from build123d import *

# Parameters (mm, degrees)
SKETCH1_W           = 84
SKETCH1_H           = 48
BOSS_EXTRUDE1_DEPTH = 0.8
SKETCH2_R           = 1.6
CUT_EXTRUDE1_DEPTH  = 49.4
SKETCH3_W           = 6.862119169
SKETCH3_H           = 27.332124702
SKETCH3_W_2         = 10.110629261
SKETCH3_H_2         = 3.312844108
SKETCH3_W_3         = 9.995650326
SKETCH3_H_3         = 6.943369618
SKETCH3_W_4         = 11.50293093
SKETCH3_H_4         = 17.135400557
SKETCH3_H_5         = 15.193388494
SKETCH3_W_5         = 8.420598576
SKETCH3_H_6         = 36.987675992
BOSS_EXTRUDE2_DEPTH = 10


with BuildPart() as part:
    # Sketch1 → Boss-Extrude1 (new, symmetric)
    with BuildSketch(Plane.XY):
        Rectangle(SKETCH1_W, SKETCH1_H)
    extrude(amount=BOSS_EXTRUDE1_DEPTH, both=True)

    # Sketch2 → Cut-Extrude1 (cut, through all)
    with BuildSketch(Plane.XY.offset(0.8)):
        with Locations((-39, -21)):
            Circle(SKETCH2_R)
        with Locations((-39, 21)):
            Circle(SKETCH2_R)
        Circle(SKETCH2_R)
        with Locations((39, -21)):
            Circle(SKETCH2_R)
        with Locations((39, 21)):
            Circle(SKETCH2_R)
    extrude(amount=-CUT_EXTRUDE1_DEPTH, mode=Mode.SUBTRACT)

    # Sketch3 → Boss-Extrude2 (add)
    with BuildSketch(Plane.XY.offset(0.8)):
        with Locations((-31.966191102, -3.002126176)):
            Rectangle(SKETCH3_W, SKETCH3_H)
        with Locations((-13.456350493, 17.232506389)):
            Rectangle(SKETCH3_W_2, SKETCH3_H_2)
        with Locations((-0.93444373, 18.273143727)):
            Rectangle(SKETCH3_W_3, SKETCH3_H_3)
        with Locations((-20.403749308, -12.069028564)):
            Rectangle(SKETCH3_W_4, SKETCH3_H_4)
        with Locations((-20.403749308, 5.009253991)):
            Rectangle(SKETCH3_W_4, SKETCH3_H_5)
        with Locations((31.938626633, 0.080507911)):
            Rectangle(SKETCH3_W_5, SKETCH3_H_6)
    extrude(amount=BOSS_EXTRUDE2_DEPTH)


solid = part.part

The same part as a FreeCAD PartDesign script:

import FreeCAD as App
import Part
import Sketcher

V = App.Vector

doc = App.newDocument("Part")
body = doc.addObject("PartDesign::Body", "Body")

# Sketch on XY plane
sketch1 = body.newObject("Sketcher::SketchObject", "Sketch")
sketch1.AttachmentSupport = (doc.getObject("XY_Plane"), [""])
sketch1.MapMode = "FlatFace"
sketch1.addGeometry([
    Part.LineSegment(V(-42, 24, 0), V(-42, -24, 0)),
    Part.LineSegment(V(-42, -24, 0), V(42, -24, 0)),
    Part.LineSegment(V(42, -24, 0), V(42, 24, 0)),
    Part.LineSegment(V(42, 24, 0), V(-42, 24, 0)),
], False)
sketch1.addConstraint([
    Sketcher.Constraint("Coincident", 0, 2, 1, 1),
    Sketcher.Constraint("Coincident", 1, 2, 2, 1),
    Sketcher.Constraint("Coincident", 2, 2, 3, 1),
    Sketcher.Constraint("Coincident", 3, 2, 0, 1),
    Sketcher.Constraint("Vertical", 0),
    Sketcher.Constraint("Horizontal", 1),
    Sketcher.Constraint("Vertical", 2),
    Sketcher.Constraint("Horizontal", 3),
    Sketcher.Constraint("Symmetric", 0, 2, 2, 2, -1, 1),
    Sketcher.Constraint("DistanceX", 1, 1, 1, 2, 84.0),
    Sketcher.Constraint("DistanceY", 0, 2, 0, 1, 48.0),
])
pad1 = body.newObject("PartDesign::Pad", "Pad")
pad1.Profile = sketch1
pad1.Length = 1.6
pad1.Midplane = True

# Sketch on XY plane
sketch2 = body.newObject("Sketcher::SketchObject", "Sketch001")
sketch2.AttachmentSupport = (doc.getObject("XY_Plane"), [""])
sketch2.MapMode = "FlatFace"
sketch2.AttachmentOffset = App.Placement(V(0, 0, 0.8), App.Rotation())
sketch2.addGeometry([
    Part.Circle(V(-39, -21, 0), V(0, 0, 1), 1.6),  # 0
    Part.Circle(V(-39, 21, 0), V(0, 0, 1), 1.6),  # 1
    Part.Circle(V(0, 0, 0), V(0, 0, 1), 1.6),  # 2
    Part.Circle(V(39, -21, 0), V(0, 0, 1), 1.6),  # 3
    Part.Circle(V(39, 21, 0), V(0, 0, 1), 1.6),  # 4
], False)
sketch2.addConstraint([
    Sketcher.Constraint("Coincident", 2, 3, -1, 1),
    Sketcher.Constraint("Equal", 0, 1),
    Sketcher.Constraint("Equal", 1, 2),
    Sketcher.Constraint("Equal", 2, 3),
    Sketcher.Constraint("Equal", 3, 4),
    Sketcher.Constraint("Symmetric", 1, 3, 3, 3, -1, 1),
    Sketcher.Constraint("Symmetric", 0, 3, 4, 3, -1, 1),
    Sketcher.Constraint("Symmetric", 0, 3, 3, 3, -2),
    Sketcher.Constraint("Diameter", 0, 3.2),
    Sketcher.Constraint("DistanceX", 0, 3, -1, 1, 39.0),
    Sketcher.Constraint("DistanceY", 0, 3, -1, 1, 21.0),
])
pocket1 = body.newObject("PartDesign::Pocket", "Pocket")
pocket1.Profile = sketch2
pocket1.Type = "ThroughAll"

# Sketch on XY plane
sketch3 = body.newObject("Sketcher::SketchObject", "Sketch002")
sketch3.AttachmentSupport = (doc.getObject("XY_Plane"), [""])
sketch3.MapMode = "FlatFace"
sketch3.AttachmentOffset = App.Placement(V(0, 0, 0.8), App.Rotation())
sketch3.addGeometry([
    Part.LineSegment(V(-35.397251, 10.663936, 0), V(-35.397251, -16.668189, 0)),  # 0
    Part.LineSegment(V(-35.397251, -16.668189, 0), V(-28.535132, -16.668189, 0)),  # 1
    Part.LineSegment(V(-28.535132, -16.668189, 0), V(-28.535132, 10.663936, 0)),  # 2
    Part.LineSegment(V(-28.535132, 10.663936, 0), V(-35.397251, 10.663936, 0)),  # 3
    Part.LineSegment(V(-18.511665, 18.888928, 0), V(-18.511665, 15.576084, 0)),  # 4
    Part.LineSegment(V(-18.511665, 15.576084, 0), V(-8.401036, 15.576084, 0)),  # 5
    Part.LineSegment(V(-8.401036, 15.576084, 0), V(-8.401036, 18.888928, 0)),  # 6
    Part.LineSegment(V(-8.401036, 18.888928, 0), V(-18.511665, 18.888928, 0)),  # 7
    Part.LineSegment(V(-5.932269, 21.744829, 0), V(-5.932269, 14.801459, 0)),  # 8
    Part.LineSegment(V(-5.932269, 14.801459, 0), V(4.063381, 14.801459, 0)),  # 9
    Part.LineSegment(V(4.063381, 14.801459, 0), V(4.063381, 21.744829, 0)),  # 10
    Part.LineSegment(V(4.063381, 21.744829, 0), V(-5.932269, 21.744829, 0)),  # 11
    Part.LineSegment(V(-26.155215, -3.501328, 0), V(-26.155215, -20.636729, 0)),  # 12
    Part.LineSegment(V(-26.155215, -20.636729, 0), V(-14.652284, -20.636729, 0)),  # 13
    Part.LineSegment(V(-14.652284, -20.636729, 0), V(-14.652284, -3.501328, 0)),  # 14
    Part.LineSegment(V(-14.652284, -3.501328, 0), V(-26.155215, -3.501328, 0)),  # 15
    Part.LineSegment(V(-26.155215, 12.605948, 0), V(-26.155215, -2.58744, 0)),  # 16
    Part.LineSegment(V(-26.155215, -2.58744, 0), V(-14.652284, -2.58744, 0)),  # 17
    Part.LineSegment(V(-14.652284, -2.58744, 0), V(-14.652284, 12.605948, 0)),  # 18
    Part.LineSegment(V(-14.652284, 12.605948, 0), V(-26.155215, 12.605948, 0)),  # 19
    Part.LineSegment(V(27.728327, 18.574346, 0), V(27.728327, -18.41333, 0)),  # 20
    Part.LineSegment(V(27.728327, -18.41333, 0), V(36.148926, -18.41333, 0)),  # 21
    Part.LineSegment(V(36.148926, -18.41333, 0), V(36.148926, 18.574346, 0)),  # 22
    Part.LineSegment(V(36.148926, 18.574346, 0), V(27.728327, 18.574346, 0)),  # 23
], False)
sketch3.addConstraint([
    Sketcher.Constraint("Coincident", 0, 2, 1, 1),
    Sketcher.Constraint("Coincident", 1, 2, 2, 1),
    Sketcher.Constraint("Coincident", 2, 2, 3, 1),
    Sketcher.Constraint("Coincident", 3, 2, 0, 1),
    Sketcher.Constraint("Coincident", 4, 2, 5, 1),
    Sketcher.Constraint("Coincident", 5, 2, 6, 1),
    Sketcher.Constraint("Coincident", 6, 2, 7, 1),
    Sketcher.Constraint("Coincident", 7, 2, 4, 1),
    Sketcher.Constraint("Coincident", 8, 2, 9, 1),
    Sketcher.Constraint("Coincident", 9, 2, 10, 1),
    Sketcher.Constraint("Coincident", 10, 2, 11, 1),
    Sketcher.Constraint("Coincident", 11, 2, 8, 1),
    Sketcher.Constraint("Coincident", 12, 2, 13, 1),
    Sketcher.Constraint("Coincident", 13, 2, 14, 1),
    Sketcher.Constraint("Coincident", 14, 2, 15, 1),
    Sketcher.Constraint("Coincident", 15, 2, 12, 1),
    Sketcher.Constraint("Coincident", 16, 2, 17, 1),
    Sketcher.Constraint("Coincident", 17, 2, 18, 1),
    Sketcher.Constraint("Coincident", 18, 2, 19, 1),
    Sketcher.Constraint("Coincident", 19, 2, 16, 1),
    Sketcher.Constraint("Coincident", 20, 2, 21, 1),
    Sketcher.Constraint("Coincident", 21, 2, 22, 1),
    Sketcher.Constraint("Coincident", 22, 2, 23, 1),
    Sketcher.Constraint("Coincident", 23, 2, 20, 1),
    Sketcher.Constraint("Vertical", 0),
    Sketcher.Constraint("Horizontal", 1),
    Sketcher.Constraint("Vertical", 2),
    Sketcher.Constraint("Horizontal", 3),
    Sketcher.Constraint("Vertical", 4),
    Sketcher.Constraint("Horizontal", 5),
    Sketcher.Constraint("Vertical", 6),
    Sketcher.Constraint("Horizontal", 7),
    Sketcher.Constraint("Vertical", 8),
    Sketcher.Constraint("Horizontal", 9),
    Sketcher.Constraint("Vertical", 10),
    Sketcher.Constraint("Horizontal", 11),
    Sketcher.Constraint("Vertical", 12),
    Sketcher.Constraint("Horizontal", 13),
    Sketcher.Constraint("Vertical", 14),
    Sketcher.Constraint("Horizontal", 15),
    Sketcher.Constraint("Vertical", 16),
    Sketcher.Constraint("Horizontal", 17),
    Sketcher.Constraint("Vertical", 18),
    Sketcher.Constraint("Horizontal", 19),
    Sketcher.Constraint("Vertical", 20),
    Sketcher.Constraint("Horizontal", 21),
    Sketcher.Constraint("Vertical", 22),
    Sketcher.Constraint("Horizontal", 23),
    Sketcher.Constraint("Vertical", 15, 2, 16, 2),
    Sketcher.Constraint("Vertical", 14, 2, 17, 2),
    Sketcher.Constraint("DistanceX", 21, 1, 21, 2, 8.420599),
    Sketcher.Constraint("DistanceY", 12, 2, 12, 1, 17.135401),
    Sketcher.Constraint("DistanceY", 20, 2, 14, 2, 14.912002),
    Sketcher.Constraint("DistanceX", 1, 1, 1, 2, 6.862119),
    Sketcher.Constraint("DistanceX", 5, 1, 5, 2, 10.110629),
    Sketcher.Constraint("DistanceX", 9, 1, 9, 2, 9.99565),
    Sketcher.Constraint("DistanceX", 13, 1, 13, 2, 11.502931),
    Sketcher.Constraint("DistanceY", 8, 2, 8, 1, 6.94337),
    Sketcher.Constraint("DistanceY", 16, 2, 16, 1, 15.193388),
    Sketcher.Constraint("DistanceY", 6, 2, 10, 2, 2.8559),
    Sketcher.Constraint("DistanceY", 0, 2, 0, 1, 27.332125),
    Sketcher.Constraint("DistanceY", 4, 2, 4, 1, 3.312844),
    Sketcher.Constraint("DistanceY", 20, 2, 20, 1, 36.987676),
    Sketcher.Constraint("DistanceX", 0, 2, -1, 1, 35.397251),
    Sketcher.Constraint("DistanceY", 0, 2, -1, 1, 16.668189),
    Sketcher.Constraint("DistanceY", -1, 1, 6, 2, 18.888928),
    Sketcher.Constraint("DistanceX", 8, 2, -1, 1, 5.932269),
    Sketcher.Constraint("DistanceY", 12, 2, -1, 1, 20.636729),
    Sketcher.Constraint("DistanceY", 16, 2, -1, 1, 2.58744),
    Sketcher.Constraint("DistanceX", 12, 2, 4, 2, 7.64355),
    Sketcher.Constraint("DistanceX", 13, 2, 20, 2, 42.380611),
    Sketcher.Constraint("DistanceX", 4, 2, -1, 1, 18.511665),
])
pad2 = body.newObject("PartDesign::Pad", "Pad001")
pad2.Profile = sketch3
pad2.Length = 10

doc.recompute()
